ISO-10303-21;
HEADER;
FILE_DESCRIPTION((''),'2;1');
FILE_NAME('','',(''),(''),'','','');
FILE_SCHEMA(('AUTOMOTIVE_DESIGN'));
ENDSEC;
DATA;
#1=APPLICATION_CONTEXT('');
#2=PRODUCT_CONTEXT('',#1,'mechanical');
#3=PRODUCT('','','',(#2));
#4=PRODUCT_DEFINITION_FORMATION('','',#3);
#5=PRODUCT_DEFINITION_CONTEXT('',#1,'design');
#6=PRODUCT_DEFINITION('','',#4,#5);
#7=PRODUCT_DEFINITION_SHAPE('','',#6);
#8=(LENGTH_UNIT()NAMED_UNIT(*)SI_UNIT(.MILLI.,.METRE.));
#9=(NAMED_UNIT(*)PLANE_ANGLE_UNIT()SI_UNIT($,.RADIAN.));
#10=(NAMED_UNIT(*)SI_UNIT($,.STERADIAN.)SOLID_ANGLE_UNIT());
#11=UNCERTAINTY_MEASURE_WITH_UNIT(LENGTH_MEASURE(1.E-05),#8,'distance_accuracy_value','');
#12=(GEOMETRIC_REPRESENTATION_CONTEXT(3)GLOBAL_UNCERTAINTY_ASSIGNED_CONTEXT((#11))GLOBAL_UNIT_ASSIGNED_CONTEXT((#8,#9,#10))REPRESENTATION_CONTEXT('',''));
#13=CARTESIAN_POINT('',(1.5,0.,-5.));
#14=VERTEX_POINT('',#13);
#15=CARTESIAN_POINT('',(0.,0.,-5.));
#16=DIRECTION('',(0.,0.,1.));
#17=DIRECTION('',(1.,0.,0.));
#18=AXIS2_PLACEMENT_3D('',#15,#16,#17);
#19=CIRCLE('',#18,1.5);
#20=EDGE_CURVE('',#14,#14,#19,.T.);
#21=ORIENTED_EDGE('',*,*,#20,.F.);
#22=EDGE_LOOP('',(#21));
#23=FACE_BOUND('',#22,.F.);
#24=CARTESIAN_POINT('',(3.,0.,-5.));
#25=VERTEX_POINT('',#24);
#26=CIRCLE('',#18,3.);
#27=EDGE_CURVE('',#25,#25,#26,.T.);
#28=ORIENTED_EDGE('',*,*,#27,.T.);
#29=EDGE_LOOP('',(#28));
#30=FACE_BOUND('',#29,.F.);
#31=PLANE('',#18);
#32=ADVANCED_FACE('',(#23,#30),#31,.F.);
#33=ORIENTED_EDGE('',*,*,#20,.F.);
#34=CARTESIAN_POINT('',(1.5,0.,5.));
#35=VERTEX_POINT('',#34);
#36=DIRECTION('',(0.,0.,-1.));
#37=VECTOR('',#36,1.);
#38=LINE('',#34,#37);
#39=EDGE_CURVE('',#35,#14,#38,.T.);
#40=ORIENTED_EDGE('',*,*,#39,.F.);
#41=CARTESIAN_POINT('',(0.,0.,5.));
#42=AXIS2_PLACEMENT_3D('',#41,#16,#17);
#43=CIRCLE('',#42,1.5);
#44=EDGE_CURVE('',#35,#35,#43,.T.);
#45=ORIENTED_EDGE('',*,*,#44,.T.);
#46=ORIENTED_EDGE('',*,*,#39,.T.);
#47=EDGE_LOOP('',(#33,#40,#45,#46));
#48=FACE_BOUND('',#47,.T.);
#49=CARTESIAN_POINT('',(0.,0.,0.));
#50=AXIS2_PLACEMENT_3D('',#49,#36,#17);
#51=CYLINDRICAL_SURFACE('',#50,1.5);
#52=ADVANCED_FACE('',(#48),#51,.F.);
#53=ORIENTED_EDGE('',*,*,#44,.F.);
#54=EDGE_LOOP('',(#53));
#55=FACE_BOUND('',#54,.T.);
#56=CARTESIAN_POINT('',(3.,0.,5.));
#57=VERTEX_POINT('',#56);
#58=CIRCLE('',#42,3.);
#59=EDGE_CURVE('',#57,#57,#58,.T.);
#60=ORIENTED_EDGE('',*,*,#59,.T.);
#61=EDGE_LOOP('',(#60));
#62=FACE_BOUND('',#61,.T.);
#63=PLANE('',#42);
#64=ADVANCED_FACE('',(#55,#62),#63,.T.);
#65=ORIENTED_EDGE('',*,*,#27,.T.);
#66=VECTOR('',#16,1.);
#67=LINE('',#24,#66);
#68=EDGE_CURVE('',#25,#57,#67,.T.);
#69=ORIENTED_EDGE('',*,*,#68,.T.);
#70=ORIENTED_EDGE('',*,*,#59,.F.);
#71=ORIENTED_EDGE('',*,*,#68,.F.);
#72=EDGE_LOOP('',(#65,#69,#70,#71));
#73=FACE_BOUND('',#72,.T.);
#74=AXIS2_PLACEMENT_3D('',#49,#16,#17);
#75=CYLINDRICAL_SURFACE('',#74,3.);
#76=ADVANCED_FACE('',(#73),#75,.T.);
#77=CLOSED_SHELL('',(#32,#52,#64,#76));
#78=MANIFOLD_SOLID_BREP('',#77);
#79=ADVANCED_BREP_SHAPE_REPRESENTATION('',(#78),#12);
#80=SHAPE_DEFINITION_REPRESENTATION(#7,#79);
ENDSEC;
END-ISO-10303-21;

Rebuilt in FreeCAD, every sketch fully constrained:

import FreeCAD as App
import Part
import Sketcher
from FreeCAD import Vector

doc = App.newDocument("Part")
params = doc.addObject("Spreadsheet::Sheet", "Params")
for row, (alias, value) in enumerate([
    ("sketch1_diameter", "6 mm"),
    ("sketch1_diameter2", "3 mm"),
    ("pad1_length", "10 mm"),
], start=1):
    params.set(f"A{row}", alias)
    params.set(f"B{row}", "=" + value)
    params.setAlias(f"B{row}", alias)

body = doc.addObject("PartDesign::Body", "Body")

sketch1 = body.newObject("Sketcher::SketchObject", "Sketch")
sketch1.AttachmentSupport = (doc.getObject("XY_Plane"), [""])
sketch1.MapMode = "FlatFace"
sketch1.addGeometry(Part.Circle(Vector(0, 0, 0), Vector(0, 0, 1), 3), False)
sketch1.addGeometry(Part.Circle(Vector(0, 0, 0), Vector(0, 0, 1), 1.5), False)
sketch1.addConstraint(Sketcher.Constraint("Coincident", 0, 3, -1, 1))
sketch1.addConstraint(Sketcher.Constraint("Coincident", 1, 3, -1, 1))
sketch1.addConstraint(Sketcher.Constraint("Diameter", 0, 6.0))
sketch1.addConstraint(Sketcher.Constraint("Diameter", 1, 3.0))
sketch1.setExpression("Constraints[2]", "Params.sketch1_diameter")
sketch1.setExpression("Constraints[3]", "Params.sketch1_diameter2")
pad1 = body.newObject("PartDesign::Pad", "Pad")
pad1.Profile = sketch1
pad1.setExpression("Length", "Params.pad1_length")
pad1.Midplane = True

doc.recompute()
